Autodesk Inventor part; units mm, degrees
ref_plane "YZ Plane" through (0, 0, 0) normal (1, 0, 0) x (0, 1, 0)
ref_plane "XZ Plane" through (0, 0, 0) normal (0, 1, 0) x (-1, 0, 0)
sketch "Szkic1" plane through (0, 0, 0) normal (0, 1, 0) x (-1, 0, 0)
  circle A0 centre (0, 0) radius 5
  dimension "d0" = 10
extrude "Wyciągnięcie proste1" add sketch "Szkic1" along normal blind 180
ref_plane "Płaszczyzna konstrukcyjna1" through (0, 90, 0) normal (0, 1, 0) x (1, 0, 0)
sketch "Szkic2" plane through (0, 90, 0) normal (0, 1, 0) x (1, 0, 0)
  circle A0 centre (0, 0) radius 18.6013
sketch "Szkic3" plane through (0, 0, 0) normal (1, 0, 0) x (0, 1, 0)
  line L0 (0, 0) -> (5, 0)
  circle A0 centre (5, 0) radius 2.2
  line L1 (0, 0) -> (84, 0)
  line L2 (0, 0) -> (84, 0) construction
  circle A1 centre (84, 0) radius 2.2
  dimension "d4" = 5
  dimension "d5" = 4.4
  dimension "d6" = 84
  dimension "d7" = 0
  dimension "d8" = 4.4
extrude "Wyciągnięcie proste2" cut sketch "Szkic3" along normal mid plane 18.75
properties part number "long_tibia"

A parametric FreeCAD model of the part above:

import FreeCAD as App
import Part
import Sketcher
from FreeCAD import Vector
Q = App.Units.Quantity

doc = App.newDocument("Part")
params = doc.addObject("Spreadsheet::Sheet", "Params")
for row, (alias, value) in enumerate([
    ("sketch1_diameter", "10 mm"),
    ("pad1_length", "180 mm"),
    ("sketch2_diameter", "4.4 mm"),
    ("pocket1_length", "18.75 mm"),
], start=1):
    params.set(f"A{row}", alias)
    params.set(f"B{row}", "=" + value)
    params.setAlias(f"B{row}", alias)

body = doc.addObject("PartDesign::Body", "Body")

sketch1 = body.newObject("Sketcher::SketchObject", "Sketch")
sketch1.AttachmentSupport = (doc.getObject("XZ_Plane"), [""])
sketch1.MapMode = "FlatFace"
sketch1.addGeometry(Part.Circle(Vector(0, 0, 0), Vector(0, 0, 1), 5), False)
sketch1.addConstraint([
    Sketcher.Constraint("Coincident", 0, 3, -1, 1),
    Sketcher.Constraint("Diameter", 0, Q("10 mm")),
])
sketch1.setExpression("Constraints[1]", "Params.sketch1_diameter")
pad1 = body.newObject("PartDesign::Pad", "Pad")
pad1.Profile = sketch1
pad1.setExpression("Length", "Params.pad1_length")
pad1.Reversed = True

sketch2 = body.newObject("Sketcher::SketchObject", "Sketch001")
sketch2.AttachmentSupport = (doc.getObject("YZ_Plane"), [""])
sketch2.MapMode = "FlatFace"
sketch2.addGeometry([
    Part.Circle(Vector(5, 0, 0), Vector(0, 0, 1), 2.2),
    Part.Circle(Vector(84, 0, 0), Vector(0, 0, 1), 2.2),
], False)
sketch2.addConstraint([
    Sketcher.Constraint("Equal", 0, 1),
    Sketcher.Constraint("PointOnObject", 0, 3, -1),
    Sketcher.Constraint("PointOnObject", 1, 3, -1),
    Sketcher.Constraint("Diameter", 0, Q("4.4 mm")),
    Sketcher.Constraint("DistanceX", -1, 1, 0, 3, Q("5 mm")),
    Sketcher.Constraint("DistanceX", -1, 1, 1, 3, Q("84 mm")),
])
sketch2.setExpression("Constraints[3]", "Params.sketch2_diameter")
pocket1 = body.newObject("PartDesign::Pocket", "Pocket")
pocket1.Profile = sketch2
pocket1.setExpression("Length", "Params.pocket1_length")
pocket1.Midplane = True

doc.recompute()
